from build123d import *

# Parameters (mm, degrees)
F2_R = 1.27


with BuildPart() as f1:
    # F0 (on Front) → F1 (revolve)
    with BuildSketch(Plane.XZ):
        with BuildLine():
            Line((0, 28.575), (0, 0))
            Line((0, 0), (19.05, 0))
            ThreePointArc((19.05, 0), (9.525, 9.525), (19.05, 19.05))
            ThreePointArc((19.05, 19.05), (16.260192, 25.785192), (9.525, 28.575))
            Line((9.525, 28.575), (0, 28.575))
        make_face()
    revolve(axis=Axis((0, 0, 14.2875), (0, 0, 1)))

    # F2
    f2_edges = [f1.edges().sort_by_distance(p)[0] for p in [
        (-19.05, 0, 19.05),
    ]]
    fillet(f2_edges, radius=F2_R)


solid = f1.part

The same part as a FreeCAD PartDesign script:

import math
import FreeCAD as App
import Part
import Sketcher
Q = App.Units.Quantity


def edges_at(feature, points):
    """Names of the edges that pass closest to the given points."""
    edges = feature.Shape.Edges
    near = lambda p: min(range(len(edges)), key=lambda i: edges[i].distToShape(Part.Vertex(*p))[0])
    return sorted({f"Edge{near(p) + 1}" for p in points})

doc = App.newDocument("Part")
body = doc.addObject("PartDesign::Body", "Body")

sketch1 = body.newObject("Sketcher::SketchObject", "Sketch")
sketch1.AttachmentSupport = (doc.getObject("XZ_Plane"), [""])
sketch1.MapMode = "FlatFace"
sketch1.addGeometry(Part.LineSegment(App.Vector(0, 29, 0), App.Vector(0, 0, 0)), False)
sketch1.addGeometry(Part.LineSegment(App.Vector(0, 0, 0), App.Vector(19, 0, 0)), False)
sketch1.addGeometry(Part.ArcOfCircle(Part.Circle(App.Vector(19, 10, 0), App.Vector(0, 0, 1), 10), math.radians(90), math.radians(270)), False)
sketch1.addGeometry(Part.ArcOfCircle(Part.Circle(App.Vector(10, 19, 0), App.Vector(0, 0, 1), 10), math.radians(0), math.radians(90)), False)
sketch1.addGeometry(Part.LineSegment(App.Vector(10, 29, 0), App.Vector(0, 29, 0)), False)
sketch1.addConstraint(Sketcher.Constraint("Coincident", 0, 2, 1, 1))
sketch1.addConstraint(Sketcher.Constraint("Tangent", 1, 2, 2, 2))
sketch1.addConstraint(Sketcher.Constraint("Coincident", 2, 1, 3, 1))
sketch1.addConstraint(Sketcher.Constraint("Tangent", 3, 2, 4, 1))
sketch1.addConstraint(Sketcher.Constraint("Coincident", 4, 2, 0, 1))
sketch1.addConstraint(Sketcher.Constraint("Vertical", 0))
sketch1.addConstraint(Sketcher.Constraint("Horizontal", 1))
sketch1.addConstraint(Sketcher.Constraint("Horizontal", 4))
sketch1.addConstraint(Sketcher.Constraint("Coincident", 0, 2, -1, 1))
sketch1.addConstraint(Sketcher.Constraint("Equal", 2, 3))
sketch1.addConstraint(Sketcher.Constraint("Horizontal", 3, 3, 2, 1))
sketch1.addConstraint(Sketcher.Constraint("Vertical", 1, 2, 2, 1))
sketch1.addConstraint(Sketcher.Constraint("Radius", 2, Q("0.375 in")))
sketch1.addConstraint(Sketcher.Constraint("DistanceX", 1, 1, 1, 2, Q("0.75 in")))
revolution = body.newObject("PartDesign::Revolution", "Revolution")
revolution.Profile = sketch1
revolution.ReferenceAxis = (sketch1, ["V_Axis"])
revolution.Angle = 360
doc.recompute()

fillet = body.newObject("PartDesign::Fillet", "Fillet")
fillet.Base = (revolution, edges_at(revolution, [(-19.05, 0, 19.05)]))
fillet.Radius = Q("0.05 in")

doc.recompute()
